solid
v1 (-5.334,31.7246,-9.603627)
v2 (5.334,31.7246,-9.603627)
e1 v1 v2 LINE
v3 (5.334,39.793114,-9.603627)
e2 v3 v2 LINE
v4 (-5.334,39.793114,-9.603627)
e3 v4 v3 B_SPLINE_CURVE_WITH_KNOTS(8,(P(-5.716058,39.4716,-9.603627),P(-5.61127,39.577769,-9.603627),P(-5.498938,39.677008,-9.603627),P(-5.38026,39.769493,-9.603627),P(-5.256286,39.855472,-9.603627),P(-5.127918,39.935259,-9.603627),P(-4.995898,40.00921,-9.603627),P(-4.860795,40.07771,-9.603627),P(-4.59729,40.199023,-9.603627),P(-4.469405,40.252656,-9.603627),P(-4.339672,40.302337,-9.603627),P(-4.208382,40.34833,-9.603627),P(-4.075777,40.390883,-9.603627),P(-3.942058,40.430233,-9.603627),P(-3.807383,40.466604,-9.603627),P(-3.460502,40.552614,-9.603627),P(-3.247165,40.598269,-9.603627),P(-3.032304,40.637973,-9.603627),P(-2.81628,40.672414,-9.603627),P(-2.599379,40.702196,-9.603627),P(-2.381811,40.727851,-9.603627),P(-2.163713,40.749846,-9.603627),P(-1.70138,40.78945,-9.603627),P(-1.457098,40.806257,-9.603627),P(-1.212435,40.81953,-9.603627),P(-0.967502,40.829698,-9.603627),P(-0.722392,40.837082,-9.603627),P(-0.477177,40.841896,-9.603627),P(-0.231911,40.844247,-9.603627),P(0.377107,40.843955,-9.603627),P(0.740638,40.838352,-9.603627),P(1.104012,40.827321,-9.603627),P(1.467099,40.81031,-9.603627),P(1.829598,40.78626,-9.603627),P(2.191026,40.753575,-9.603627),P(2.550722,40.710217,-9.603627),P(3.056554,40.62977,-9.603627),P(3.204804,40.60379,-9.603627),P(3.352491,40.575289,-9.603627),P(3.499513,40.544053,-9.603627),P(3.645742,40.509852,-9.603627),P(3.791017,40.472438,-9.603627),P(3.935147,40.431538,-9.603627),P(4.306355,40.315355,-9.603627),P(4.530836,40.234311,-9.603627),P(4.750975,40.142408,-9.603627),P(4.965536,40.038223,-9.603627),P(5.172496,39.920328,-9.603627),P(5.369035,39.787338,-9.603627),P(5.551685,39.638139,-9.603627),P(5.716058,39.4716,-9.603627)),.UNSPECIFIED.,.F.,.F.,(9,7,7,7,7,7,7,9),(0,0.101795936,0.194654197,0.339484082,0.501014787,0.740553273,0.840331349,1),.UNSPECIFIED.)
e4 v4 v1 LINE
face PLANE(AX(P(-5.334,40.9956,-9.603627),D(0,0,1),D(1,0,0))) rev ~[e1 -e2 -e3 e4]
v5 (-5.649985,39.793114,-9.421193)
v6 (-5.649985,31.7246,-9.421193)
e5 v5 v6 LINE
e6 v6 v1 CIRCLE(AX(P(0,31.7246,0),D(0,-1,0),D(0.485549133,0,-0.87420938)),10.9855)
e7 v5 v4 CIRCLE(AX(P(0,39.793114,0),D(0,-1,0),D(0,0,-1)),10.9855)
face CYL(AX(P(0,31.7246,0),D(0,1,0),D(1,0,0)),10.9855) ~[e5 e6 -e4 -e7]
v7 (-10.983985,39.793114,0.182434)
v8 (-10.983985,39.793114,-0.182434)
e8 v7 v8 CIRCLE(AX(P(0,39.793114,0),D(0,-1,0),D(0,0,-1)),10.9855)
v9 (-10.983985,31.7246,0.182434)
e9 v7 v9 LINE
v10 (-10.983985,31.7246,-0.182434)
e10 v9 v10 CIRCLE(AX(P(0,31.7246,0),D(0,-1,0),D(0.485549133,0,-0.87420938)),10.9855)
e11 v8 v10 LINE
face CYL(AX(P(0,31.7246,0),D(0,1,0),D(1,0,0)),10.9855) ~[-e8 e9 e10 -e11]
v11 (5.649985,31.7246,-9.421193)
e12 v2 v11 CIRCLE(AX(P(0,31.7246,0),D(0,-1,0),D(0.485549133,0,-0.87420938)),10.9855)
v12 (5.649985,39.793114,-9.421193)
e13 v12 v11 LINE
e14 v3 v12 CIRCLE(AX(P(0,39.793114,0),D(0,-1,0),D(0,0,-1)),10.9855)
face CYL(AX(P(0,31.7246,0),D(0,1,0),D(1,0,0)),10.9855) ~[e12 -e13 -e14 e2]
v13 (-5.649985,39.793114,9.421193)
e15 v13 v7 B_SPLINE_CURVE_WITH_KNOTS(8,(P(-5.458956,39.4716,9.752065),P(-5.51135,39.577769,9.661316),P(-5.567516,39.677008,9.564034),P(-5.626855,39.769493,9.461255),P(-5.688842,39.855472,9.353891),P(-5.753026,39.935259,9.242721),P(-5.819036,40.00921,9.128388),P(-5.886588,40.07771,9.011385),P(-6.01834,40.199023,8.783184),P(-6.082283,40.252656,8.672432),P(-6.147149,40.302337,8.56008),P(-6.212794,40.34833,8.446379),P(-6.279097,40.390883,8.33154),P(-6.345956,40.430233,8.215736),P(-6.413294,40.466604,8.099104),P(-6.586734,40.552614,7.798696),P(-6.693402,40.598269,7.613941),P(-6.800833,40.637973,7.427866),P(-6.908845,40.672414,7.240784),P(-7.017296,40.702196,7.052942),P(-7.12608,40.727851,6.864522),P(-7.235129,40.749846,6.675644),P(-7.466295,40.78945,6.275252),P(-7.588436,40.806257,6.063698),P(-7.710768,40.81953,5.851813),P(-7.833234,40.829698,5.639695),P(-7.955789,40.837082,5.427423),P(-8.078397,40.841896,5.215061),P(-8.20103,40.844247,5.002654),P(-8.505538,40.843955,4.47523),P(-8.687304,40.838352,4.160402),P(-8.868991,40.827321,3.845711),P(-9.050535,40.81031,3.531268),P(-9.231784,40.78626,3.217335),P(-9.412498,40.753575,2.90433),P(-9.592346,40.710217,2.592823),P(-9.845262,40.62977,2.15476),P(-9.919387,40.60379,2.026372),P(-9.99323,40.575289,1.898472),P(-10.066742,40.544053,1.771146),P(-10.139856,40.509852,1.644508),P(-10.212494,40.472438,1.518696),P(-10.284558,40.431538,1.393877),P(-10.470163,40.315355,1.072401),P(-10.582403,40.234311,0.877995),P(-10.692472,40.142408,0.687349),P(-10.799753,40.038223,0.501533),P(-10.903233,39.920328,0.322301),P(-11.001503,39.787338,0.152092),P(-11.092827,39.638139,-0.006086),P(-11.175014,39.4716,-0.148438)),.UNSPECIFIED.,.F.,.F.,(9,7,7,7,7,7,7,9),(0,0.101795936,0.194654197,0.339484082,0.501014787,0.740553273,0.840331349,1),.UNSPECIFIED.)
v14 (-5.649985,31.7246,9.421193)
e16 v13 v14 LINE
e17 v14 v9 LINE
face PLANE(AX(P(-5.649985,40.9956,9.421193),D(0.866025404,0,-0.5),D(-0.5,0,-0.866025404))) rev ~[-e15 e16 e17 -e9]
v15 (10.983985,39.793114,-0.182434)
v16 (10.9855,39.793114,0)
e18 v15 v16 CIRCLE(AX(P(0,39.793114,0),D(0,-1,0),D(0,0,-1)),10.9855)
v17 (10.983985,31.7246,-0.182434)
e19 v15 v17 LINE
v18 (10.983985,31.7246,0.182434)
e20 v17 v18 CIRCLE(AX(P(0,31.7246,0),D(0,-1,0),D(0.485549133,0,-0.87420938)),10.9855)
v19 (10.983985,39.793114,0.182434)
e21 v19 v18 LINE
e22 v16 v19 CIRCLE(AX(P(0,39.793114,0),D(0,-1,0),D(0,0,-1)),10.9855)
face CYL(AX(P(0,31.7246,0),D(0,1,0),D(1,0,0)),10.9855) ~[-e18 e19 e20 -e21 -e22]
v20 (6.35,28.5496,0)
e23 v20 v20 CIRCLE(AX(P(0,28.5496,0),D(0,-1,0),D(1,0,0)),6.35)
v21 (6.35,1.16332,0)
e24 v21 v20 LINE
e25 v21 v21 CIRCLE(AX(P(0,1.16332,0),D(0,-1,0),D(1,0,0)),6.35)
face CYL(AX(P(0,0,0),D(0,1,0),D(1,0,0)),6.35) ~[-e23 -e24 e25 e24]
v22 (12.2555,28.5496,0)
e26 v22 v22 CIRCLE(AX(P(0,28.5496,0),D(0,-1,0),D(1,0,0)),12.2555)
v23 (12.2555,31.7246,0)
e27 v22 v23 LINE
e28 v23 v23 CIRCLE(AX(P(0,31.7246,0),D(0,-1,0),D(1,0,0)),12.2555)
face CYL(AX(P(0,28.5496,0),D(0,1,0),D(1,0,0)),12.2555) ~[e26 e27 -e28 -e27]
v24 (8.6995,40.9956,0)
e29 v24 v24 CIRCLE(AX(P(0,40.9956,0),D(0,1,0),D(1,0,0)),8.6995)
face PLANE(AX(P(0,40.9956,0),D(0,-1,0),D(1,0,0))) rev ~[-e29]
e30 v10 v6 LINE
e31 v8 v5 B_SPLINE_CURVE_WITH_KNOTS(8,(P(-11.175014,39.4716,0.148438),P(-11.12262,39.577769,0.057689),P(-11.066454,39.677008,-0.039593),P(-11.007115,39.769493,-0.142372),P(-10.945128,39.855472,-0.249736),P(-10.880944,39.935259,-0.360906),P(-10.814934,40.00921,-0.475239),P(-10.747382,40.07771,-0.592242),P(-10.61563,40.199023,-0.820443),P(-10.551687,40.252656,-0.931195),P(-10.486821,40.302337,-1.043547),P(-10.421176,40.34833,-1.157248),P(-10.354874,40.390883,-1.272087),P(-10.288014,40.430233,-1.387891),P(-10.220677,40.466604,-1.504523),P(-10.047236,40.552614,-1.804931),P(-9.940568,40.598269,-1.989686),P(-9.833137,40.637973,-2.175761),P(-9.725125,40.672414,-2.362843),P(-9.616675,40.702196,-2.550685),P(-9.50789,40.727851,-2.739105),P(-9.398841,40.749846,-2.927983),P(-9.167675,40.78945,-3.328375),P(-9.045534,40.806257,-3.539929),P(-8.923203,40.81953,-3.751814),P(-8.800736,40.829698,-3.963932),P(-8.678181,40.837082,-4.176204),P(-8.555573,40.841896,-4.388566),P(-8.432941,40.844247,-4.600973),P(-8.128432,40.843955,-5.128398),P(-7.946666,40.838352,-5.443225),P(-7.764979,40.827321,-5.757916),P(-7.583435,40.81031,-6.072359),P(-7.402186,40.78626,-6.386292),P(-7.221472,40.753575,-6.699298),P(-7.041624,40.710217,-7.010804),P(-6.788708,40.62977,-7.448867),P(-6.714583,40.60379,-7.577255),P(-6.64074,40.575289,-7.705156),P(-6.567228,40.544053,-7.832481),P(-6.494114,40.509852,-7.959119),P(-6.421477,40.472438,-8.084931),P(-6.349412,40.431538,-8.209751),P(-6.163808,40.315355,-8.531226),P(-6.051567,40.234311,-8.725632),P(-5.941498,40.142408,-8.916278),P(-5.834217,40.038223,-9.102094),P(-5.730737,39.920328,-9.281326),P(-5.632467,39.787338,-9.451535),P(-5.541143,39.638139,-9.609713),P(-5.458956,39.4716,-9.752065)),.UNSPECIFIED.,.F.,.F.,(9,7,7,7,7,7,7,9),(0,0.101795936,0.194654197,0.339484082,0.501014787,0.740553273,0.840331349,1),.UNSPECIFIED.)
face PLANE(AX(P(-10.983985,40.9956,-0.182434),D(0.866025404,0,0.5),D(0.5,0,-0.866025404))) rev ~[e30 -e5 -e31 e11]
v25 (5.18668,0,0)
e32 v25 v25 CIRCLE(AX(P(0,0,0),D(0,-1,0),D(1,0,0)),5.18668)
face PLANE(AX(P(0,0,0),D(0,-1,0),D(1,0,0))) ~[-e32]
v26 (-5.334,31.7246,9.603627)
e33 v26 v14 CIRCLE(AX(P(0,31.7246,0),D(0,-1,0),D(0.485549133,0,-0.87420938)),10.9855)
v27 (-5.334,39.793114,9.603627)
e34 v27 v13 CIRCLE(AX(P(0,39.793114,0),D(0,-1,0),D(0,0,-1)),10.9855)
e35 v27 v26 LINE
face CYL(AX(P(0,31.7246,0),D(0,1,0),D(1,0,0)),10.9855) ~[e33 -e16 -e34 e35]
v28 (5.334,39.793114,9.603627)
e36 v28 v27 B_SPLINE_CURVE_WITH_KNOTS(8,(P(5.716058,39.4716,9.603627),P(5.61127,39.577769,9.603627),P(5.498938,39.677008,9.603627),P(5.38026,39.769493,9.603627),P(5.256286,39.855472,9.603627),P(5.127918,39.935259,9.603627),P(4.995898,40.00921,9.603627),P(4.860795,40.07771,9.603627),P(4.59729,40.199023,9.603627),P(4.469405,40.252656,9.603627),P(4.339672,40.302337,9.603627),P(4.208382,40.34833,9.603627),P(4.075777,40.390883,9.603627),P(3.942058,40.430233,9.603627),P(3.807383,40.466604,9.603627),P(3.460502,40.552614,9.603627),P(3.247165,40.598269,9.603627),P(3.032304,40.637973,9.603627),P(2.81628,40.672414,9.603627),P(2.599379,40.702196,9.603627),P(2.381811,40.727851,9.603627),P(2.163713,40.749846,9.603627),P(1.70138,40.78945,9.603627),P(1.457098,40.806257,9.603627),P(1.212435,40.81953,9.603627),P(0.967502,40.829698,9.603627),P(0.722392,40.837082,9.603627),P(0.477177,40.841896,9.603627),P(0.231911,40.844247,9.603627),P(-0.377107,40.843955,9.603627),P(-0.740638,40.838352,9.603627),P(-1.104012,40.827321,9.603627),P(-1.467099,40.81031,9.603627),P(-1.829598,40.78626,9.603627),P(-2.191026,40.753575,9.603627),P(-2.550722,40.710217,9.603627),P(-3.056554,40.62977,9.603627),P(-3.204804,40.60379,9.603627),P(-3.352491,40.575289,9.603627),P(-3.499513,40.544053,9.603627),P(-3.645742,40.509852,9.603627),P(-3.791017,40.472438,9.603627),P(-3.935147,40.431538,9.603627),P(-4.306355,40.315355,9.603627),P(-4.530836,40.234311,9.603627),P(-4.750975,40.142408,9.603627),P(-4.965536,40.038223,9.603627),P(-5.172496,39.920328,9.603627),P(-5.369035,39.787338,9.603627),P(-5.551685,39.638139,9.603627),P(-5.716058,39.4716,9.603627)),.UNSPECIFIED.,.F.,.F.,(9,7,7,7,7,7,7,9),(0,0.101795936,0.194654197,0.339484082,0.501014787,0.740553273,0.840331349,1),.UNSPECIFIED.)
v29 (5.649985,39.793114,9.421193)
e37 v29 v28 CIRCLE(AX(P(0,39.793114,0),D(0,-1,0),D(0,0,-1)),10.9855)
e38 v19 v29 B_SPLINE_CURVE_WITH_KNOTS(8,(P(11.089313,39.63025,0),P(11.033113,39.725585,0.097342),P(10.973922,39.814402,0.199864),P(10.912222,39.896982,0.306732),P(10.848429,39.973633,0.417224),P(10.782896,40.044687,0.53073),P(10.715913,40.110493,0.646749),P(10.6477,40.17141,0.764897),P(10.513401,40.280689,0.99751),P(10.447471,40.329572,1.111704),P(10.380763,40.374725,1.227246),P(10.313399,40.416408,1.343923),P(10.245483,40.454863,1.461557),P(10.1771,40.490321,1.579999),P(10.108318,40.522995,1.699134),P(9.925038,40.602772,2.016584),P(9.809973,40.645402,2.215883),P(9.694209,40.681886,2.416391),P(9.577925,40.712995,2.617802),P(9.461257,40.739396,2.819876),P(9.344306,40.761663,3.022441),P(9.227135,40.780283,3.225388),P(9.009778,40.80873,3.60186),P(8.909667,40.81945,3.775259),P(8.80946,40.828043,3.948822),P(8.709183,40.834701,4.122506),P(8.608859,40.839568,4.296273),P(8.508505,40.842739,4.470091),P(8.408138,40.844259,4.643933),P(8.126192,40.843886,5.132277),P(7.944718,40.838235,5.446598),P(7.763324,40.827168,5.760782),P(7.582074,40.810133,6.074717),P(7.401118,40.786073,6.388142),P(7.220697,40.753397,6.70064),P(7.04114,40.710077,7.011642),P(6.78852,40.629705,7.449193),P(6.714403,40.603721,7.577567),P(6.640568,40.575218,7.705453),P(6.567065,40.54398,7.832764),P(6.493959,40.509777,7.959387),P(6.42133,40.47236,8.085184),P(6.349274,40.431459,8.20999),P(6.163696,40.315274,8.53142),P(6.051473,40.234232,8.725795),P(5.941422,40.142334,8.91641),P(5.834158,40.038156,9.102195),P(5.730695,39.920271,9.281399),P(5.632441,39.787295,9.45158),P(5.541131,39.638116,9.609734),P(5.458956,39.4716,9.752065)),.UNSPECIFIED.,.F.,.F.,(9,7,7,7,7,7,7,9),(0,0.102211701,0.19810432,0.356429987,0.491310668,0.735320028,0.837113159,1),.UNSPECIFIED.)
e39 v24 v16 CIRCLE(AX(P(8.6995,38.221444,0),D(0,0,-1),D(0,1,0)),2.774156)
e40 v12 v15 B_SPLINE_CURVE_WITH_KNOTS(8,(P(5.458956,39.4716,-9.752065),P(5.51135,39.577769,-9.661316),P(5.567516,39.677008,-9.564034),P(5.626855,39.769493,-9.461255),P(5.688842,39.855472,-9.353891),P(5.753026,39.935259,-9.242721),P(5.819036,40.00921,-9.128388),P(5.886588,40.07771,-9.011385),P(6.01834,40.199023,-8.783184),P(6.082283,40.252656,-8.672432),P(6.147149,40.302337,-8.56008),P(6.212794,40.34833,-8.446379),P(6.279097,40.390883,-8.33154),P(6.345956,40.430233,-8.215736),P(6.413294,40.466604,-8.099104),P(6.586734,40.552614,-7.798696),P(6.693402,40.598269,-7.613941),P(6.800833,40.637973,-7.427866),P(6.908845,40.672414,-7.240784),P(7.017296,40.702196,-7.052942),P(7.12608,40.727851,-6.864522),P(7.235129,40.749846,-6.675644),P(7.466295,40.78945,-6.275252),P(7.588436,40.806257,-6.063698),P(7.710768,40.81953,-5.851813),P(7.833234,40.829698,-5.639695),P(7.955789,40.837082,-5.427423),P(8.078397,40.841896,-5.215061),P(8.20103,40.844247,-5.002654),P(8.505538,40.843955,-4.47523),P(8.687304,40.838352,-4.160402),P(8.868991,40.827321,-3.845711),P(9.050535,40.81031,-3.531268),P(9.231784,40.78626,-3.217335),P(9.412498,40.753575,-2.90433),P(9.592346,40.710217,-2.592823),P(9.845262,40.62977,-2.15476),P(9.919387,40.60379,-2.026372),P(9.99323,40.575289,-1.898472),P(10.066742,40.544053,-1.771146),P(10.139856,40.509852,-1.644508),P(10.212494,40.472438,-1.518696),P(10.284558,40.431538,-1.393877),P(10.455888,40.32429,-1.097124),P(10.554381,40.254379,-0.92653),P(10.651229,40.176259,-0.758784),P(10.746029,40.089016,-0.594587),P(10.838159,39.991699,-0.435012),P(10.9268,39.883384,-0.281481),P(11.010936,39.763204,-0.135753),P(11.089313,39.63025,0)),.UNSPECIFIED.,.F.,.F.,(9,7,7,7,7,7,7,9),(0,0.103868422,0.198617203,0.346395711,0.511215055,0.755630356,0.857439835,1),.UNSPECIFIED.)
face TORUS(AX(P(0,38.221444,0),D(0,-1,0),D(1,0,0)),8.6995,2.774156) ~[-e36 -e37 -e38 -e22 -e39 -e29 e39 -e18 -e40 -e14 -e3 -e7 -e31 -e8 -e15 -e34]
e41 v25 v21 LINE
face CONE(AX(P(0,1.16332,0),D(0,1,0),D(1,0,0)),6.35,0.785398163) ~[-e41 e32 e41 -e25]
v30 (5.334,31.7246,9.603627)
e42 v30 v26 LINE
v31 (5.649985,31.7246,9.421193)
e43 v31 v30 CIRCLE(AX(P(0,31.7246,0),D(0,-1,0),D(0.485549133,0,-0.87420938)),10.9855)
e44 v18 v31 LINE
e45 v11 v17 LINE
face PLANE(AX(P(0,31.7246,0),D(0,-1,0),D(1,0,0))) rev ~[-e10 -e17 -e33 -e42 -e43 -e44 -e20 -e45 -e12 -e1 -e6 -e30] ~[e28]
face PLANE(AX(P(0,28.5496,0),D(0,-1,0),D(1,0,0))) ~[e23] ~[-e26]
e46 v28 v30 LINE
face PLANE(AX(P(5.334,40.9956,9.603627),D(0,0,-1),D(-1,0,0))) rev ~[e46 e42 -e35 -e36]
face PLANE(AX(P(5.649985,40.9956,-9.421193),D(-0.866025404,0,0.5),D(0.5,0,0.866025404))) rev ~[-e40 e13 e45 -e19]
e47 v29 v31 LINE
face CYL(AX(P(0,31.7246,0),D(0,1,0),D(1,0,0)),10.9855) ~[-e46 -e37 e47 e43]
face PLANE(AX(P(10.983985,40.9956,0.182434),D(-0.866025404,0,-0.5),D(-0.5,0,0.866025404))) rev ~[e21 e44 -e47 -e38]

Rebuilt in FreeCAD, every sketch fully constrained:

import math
import FreeCAD as App
import Part
import Sketcher
from FreeCAD import Vector
Q = App.Units.Quantity


def edges_at(feature, points):
    """Names of the edges that pass closest to the given points."""
    edges = feature.Shape.Edges
    near = lambda p: min(range(len(edges)), key=lambda i: edges[i].distToShape(Part.Vertex(*p))[0])
    return sorted({f"Edge{near(p) + 1}" for p in points})

doc = App.newDocument("Part")
params = doc.addObject("Spreadsheet::Sheet", "Params")
for row, (alias, value) in enumerate([
    ("sketch1_width", "0.25 in"),
    ("sketch1_width2", "0.05 in"),
    ("sketch1_height", "1.124 in"),
    ("sketch1_height2", "0.125 in"),
    ("sketch1_height3", "0.365 in"),
    ("revolution_angle", "360 deg"),
    ("sketch2_width", "0.42 in"),
    ("pocket1_length", "0.365 in"),
    ("sketch3_height", "0.06 in"),
    ("groove_angle", "360 deg"),
    ("chamfer_size", "0.0458 in"),
], start=1):
    params.set(f"A{row}", alias)
    params.set(f"B{row}", "=" + value)
    params.setAlias(f"B{row}", alias)

body = doc.addObject("PartDesign::Body", "Body")

sketch1 = body.newObject("Sketcher::SketchObject", "Sketch")
sketch1.AttachmentSupport = (doc.getObject("XY_Plane"), [""])
sketch1.MapMode = "FlatFace"
sketch1.addGeometry([
    Part.LineSegment(Vector(0, 0, 0), Vector(6.3, 0, 0)),
    Part.LineSegment(Vector(6.3, 0, 0), Vector(6.3, 28.5, 0)),
    Part.LineSegment(Vector(6.3, 28.5, 0), Vector(12.3, 28.5, 0)),
    Part.LineSegment(Vector(12.3, 28.5, 0), Vector(12.3, 31.7, 0)),
    Part.LineSegment(Vector(12.3, 31.7, 0), Vector(11, 31.7, 0)),
    Part.LineSegment(Vector(11, 31.7, 0), Vector(11, 41, 0)),
    Part.LineSegment(Vector(11, 41, 0), Vector(0, 41, 0)),
    Part.LineSegment(Vector(0, 41, 0), Vector(0, 0, 0)),
], False)
sketch1.addConstraint([
    Sketcher.Constraint("Coincident", 0, 2, 1, 1),
    Sketcher.Constraint("Coincident", 1, 2, 2, 1),
    Sketcher.Constraint("Coincident", 2, 2, 3, 1),
    Sketcher.Constraint("Coincident", 3, 2, 4, 1),
    Sketcher.Constraint("Coincident", 4, 2, 5, 1),
    Sketcher.Constraint("Coincident", 5, 2, 6, 1),
    Sketcher.Constraint("Coincident", 6, 2, 7, 1),
    Sketcher.Constraint("Coincident", 7, 2, 0, 1),
    Sketcher.Constraint("Horizontal", 0),
    Sketcher.Constraint("Vertical", 1),
    Sketcher.Constraint("Horizontal", 2),
    Sketcher.Constraint("Vertical", 3),
    Sketcher.Constraint("Horizontal", 4),
    Sketcher.Constraint("Vertical", 5),
    Sketcher.Constraint("Horizontal", 6),
    Sketcher.Constraint("Vertical", 7),
    Sketcher.Constraint("Coincident", 7, 2, -1, 1),
    Sketcher.Constraint("DistanceX", 0, 1, 0, 2, Q("0.25 in")),
    Sketcher.Constraint("DistanceX", 4, 2, 4, 1, Q("0.05 in")),
    Sketcher.Constraint("DistanceY", 1, 1, 1, 2, Q("1.124 in")),
    Sketcher.Constraint("DistanceY", 3, 1, 3, 2, Q("0.125 in")),
    Sketcher.Constraint("DistanceY", 5, 1, 5, 2, Q("0.365 in")),
    Sketcher.Constraint("DistanceX", 2, 1, 2, 2, Q("0.2325 in")),
])
sketch1.setExpression("Constraints[17]", "Params.sketch1_width")
sketch1.setExpression("Constraints[18]", "Params.sketch1_width2")
sketch1.setExpression("Constraints[19]", "Params.sketch1_height")
sketch1.setExpression("Constraints[20]", "Params.sketch1_height2")
sketch1.setExpression("Constraints[21]", "Params.sketch1_height3")
revolution = body.newObject("PartDesign::Revolution", "Revolution")
revolution.Profile = sketch1
revolution.ReferenceAxis = (sketch1, ["V_Axis"])
revolution.setExpression("Angle", "Params.revolution_angle")

sketch2 = body.newObject("Sketcher::SketchObject", "Sketch001")
sketch2.AttachmentSupport = (doc.getObject("XZ_Plane"), [""])
sketch2.MapMode = "FlatFace"
sketch2.AttachmentOffset = App.Placement(Vector(0, 0, -1.614 * 25.4), App.Rotation())
sketch2.addGeometry([
    Part.LineSegment(Vector(-5.3, -13.7, 0), Vector(-5.3, -9.6, 0)),
    Part.LineSegment(Vector(-5.3, -9.6, 0), Vector(5.3, -9.6, 0)),
    Part.LineSegment(Vector(5.3, -9.6, 0), Vector(5.3, -13.7, 0)),
    Part.LineSegment(Vector(5.3, -13.7, 0), Vector(-5.3, -13.7, 0)),
], False)
sketch2.addConstraint([
    Sketcher.Constraint("Coincident", 0, 2, 1, 1),
    Sketcher.Constraint("Coincident", 1, 2, 2, 1),
    Sketcher.Constraint("Coincident", 2, 2, 3, 1),
    Sketcher.Constraint("Coincident", 3, 2, 0, 1),
    Sketcher.Constraint("Vertical", 0),
    Sketcher.Constraint("Horizontal", 1),
    Sketcher.Constraint("Vertical", 2),
    Sketcher.Constraint("Horizontal", 3),
    Sketcher.Constraint("DistanceX", 1, 1, 1, 2, Q("0.42 in")),
    Sketcher.Constraint("DistanceX", 0, 2, -1, 1, Q("0.21 in")),
    Sketcher.Constraint("DistanceY", 0, 1, 0, 2, 4.111931),
    Sketcher.Constraint("DistanceY", 0, 2, -1, 1, 9.603627),
])
sketch2.setExpression("Constraints[8]", "Params.sketch2_width")
pocket1 = body.newObject("PartDesign::Pocket", "Pocket")
pocket1.Profile = sketch2
pocket1.setExpression("Length", "Params.pocket1_length")
pocket1.Reversed = True
doc.recompute()

polarpattern = body.newObject("PartDesign::PolarPattern", "PolarPattern")
polarpattern.Originals = [pocket1]
polarpattern.Axis = (doc.getObject("Y_Axis"), [""])
polarpattern.Angle = 360
polarpattern.Occurrences = 6
body.Tip = polarpattern

sketch3 = body.newObject("Sketcher::SketchObject", "Sketch002")
sketch3.AttachmentSupport = (doc.getObject("XY_Plane"), [""])
sketch3.MapMode = "FlatFace"
sketch3.addGeometry([
    Part.LineSegment(Vector(11.2, 39.5, 0), Vector(11.2, 41, 0)),
    Part.LineSegment(Vector(11.2, 41, 0), Vector(8.7, 41, 0)),
    Part.ArcOfCircle(Part.Circle(Vector(8.7, 38.2, 0), Vector(0, 0, 1), 2.8), math.radians(27), math.radians(90)),
], False)
sketch3.addConstraint([
    Sketcher.Constraint("Coincident", 0, 2, 1, 1),
    Sketcher.Constraint("Tangent", 1, 2, 2, 2),
    Sketcher.Constraint("Coincident", 2, 1, 0, 1),
    Sketcher.Constraint("Vertical", 0),
    Sketcher.Constraint("Horizontal", 1),
    Sketcher.Constraint("DistanceY", 0, 1, 0, 2, Q("0.06 in")),
    Sketcher.Constraint("DistanceX", -1, 1, 0, 2, Q("0.44 in")),
    Sketcher.Constraint("DistanceX", 1, 2, 1, 1, Q("0.0975 in")),
    Sketcher.Constraint("DistanceY", -1, 1, 0, 2, Q("1.614 in")),
])
sketch3.setExpression("Constraints[5]", "Params.sketch3_height")
groove = body.newObject("PartDesign::Groove", "Groove")
groove.Profile = sketch3
groove.ReferenceAxis = (sketch3, ["V_Axis"])
groove.setExpression("Angle", "Params.groove_angle")
doc.recompute()

chamfer = body.newObject("PartDesign::Chamfer", "Chamfer")
chamfer.Base = (groove, edges_at(groove, [(-6.35, 0, 0)]))
chamfer.setExpression("Size", "Params.chamfer_size")

doc.recompute()
